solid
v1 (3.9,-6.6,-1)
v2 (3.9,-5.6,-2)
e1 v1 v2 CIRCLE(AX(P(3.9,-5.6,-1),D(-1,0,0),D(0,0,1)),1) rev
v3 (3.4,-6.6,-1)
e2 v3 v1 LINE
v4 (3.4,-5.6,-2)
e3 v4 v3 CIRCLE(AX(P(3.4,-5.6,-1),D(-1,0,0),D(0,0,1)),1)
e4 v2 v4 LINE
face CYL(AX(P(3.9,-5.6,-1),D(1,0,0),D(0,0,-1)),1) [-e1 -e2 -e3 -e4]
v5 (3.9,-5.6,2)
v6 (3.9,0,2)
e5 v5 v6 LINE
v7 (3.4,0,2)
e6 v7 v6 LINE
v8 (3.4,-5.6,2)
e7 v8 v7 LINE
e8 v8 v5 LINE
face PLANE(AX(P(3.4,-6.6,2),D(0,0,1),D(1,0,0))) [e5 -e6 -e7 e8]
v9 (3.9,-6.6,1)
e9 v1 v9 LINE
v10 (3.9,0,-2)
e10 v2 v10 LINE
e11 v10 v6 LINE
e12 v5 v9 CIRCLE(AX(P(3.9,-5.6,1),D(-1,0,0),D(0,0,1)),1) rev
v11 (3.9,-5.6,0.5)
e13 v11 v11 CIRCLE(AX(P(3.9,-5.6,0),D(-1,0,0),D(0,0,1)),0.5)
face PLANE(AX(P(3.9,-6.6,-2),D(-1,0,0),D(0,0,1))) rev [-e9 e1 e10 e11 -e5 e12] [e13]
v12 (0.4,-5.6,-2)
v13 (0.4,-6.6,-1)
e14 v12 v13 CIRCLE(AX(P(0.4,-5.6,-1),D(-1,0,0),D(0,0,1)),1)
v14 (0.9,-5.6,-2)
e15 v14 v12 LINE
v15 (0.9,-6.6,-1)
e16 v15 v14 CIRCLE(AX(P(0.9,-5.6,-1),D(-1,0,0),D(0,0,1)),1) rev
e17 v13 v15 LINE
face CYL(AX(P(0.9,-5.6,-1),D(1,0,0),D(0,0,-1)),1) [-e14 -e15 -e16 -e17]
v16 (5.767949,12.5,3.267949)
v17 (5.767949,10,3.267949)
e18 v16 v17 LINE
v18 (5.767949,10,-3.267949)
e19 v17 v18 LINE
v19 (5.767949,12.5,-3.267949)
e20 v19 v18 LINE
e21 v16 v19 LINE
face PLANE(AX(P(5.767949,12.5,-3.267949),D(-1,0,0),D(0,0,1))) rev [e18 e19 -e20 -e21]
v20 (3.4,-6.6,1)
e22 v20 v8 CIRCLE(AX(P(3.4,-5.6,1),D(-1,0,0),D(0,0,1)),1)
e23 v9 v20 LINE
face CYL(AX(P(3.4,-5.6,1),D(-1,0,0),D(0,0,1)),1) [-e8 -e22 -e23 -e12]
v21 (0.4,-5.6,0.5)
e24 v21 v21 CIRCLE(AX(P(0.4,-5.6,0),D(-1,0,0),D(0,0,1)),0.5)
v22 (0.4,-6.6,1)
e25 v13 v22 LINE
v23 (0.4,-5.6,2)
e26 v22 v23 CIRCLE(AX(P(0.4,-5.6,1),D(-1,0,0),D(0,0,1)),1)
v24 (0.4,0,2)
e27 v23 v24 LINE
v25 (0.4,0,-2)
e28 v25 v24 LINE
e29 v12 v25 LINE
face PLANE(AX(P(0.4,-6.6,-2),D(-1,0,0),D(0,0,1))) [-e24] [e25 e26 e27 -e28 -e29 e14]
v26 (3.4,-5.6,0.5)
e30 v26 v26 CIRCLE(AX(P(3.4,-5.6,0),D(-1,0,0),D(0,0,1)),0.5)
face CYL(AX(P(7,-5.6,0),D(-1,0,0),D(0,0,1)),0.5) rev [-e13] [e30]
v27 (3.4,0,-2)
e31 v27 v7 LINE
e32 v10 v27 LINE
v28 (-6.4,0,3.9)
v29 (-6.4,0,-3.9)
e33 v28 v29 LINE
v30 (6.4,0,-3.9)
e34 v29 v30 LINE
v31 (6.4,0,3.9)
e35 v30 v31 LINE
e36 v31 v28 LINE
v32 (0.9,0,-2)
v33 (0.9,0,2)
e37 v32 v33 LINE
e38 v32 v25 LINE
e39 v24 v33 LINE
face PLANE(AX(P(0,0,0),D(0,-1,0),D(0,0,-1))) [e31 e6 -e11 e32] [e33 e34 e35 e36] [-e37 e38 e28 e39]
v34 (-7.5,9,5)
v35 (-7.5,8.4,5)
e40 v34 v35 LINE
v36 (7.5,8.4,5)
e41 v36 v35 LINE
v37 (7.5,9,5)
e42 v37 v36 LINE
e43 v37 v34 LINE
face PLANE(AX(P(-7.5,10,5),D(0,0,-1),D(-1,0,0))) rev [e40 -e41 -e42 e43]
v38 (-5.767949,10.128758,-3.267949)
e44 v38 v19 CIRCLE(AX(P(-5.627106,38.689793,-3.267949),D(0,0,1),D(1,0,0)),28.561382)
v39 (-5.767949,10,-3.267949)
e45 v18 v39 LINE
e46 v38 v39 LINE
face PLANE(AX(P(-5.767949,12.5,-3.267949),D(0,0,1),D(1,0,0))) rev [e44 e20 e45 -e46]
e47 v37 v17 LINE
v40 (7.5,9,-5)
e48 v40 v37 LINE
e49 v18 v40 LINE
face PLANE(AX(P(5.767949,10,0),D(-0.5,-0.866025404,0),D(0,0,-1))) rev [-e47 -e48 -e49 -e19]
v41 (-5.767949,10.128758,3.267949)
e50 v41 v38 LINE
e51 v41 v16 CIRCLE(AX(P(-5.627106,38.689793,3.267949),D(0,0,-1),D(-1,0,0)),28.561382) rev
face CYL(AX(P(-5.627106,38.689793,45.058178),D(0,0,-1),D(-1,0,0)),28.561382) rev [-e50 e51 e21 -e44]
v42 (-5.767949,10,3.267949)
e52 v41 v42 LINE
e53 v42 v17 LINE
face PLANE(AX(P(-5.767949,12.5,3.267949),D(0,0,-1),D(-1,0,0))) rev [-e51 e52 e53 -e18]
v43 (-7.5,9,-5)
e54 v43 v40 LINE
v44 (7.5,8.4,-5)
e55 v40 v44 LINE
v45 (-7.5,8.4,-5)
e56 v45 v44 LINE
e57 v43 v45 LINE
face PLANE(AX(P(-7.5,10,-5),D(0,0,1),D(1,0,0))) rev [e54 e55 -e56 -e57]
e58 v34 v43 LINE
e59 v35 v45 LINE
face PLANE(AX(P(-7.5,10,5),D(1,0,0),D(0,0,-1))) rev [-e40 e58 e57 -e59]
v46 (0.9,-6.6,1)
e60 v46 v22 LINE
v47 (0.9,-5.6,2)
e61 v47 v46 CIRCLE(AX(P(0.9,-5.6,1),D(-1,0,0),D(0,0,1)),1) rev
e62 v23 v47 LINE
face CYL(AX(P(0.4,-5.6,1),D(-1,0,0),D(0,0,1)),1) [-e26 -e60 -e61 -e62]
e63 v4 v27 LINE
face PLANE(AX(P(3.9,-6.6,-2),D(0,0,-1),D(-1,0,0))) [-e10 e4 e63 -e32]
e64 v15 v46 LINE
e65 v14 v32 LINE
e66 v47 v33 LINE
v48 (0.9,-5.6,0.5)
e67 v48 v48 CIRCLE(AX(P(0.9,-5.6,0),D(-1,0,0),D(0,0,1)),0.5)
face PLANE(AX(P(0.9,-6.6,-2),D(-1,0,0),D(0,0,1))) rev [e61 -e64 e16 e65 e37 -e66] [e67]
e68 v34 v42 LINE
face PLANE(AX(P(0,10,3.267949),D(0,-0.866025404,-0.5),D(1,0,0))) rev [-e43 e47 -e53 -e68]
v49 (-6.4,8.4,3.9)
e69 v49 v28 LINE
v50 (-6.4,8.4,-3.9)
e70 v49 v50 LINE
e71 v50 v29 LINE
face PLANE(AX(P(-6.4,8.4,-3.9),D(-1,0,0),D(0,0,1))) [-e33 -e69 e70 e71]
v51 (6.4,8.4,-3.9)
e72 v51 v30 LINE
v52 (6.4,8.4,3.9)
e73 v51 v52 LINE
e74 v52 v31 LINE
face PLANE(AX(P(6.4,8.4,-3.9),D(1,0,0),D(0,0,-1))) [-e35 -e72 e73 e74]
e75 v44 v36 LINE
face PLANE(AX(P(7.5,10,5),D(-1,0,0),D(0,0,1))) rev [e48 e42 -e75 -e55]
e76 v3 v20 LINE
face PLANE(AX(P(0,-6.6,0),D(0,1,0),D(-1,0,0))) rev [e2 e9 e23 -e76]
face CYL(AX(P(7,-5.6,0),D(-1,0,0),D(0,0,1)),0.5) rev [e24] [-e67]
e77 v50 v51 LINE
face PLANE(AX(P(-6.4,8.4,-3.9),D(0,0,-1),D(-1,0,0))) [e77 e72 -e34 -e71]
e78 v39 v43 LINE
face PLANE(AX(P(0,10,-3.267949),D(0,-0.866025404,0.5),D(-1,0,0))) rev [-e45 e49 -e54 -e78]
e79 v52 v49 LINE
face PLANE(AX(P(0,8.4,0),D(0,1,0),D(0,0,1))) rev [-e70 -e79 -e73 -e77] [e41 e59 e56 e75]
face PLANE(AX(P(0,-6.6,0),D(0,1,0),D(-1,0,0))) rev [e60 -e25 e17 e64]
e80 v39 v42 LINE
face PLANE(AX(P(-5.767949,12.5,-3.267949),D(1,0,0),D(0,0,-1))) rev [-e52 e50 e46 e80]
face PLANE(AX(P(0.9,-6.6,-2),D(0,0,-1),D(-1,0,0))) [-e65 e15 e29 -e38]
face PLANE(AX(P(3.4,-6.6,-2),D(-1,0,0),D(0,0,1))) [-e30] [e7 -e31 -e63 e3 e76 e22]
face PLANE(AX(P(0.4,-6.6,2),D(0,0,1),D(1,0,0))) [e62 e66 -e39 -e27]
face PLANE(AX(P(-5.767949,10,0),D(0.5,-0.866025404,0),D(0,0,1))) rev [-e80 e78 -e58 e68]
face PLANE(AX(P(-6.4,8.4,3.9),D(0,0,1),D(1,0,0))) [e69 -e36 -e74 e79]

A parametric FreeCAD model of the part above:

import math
import FreeCAD as App
import Part
import Sketcher
from FreeCAD import Vector


def edges_at(feature, points):
    """Names of the edges that pass closest to the given points."""
    edges = feature.Shape.Edges
    near = lambda p: min(range(len(edges)), key=lambda i: edges[i].distToShape(Part.Vertex(*p))[0])
    return sorted({f"Edge{near(p) + 1}" for p in points})

doc = App.newDocument("Part")
body = doc.addObject("PartDesign::Body", "Body")

# Sketch on XZ plane
sketch1 = body.newObject("Sketcher::SketchObject", "Sketch")
sketch1.AttachmentSupport = (doc.getObject("XZ_Plane"), [""])
sketch1.MapMode = "FlatFace"
sketch1.addGeometry([
    Part.LineSegment(Vector(-7.5, -5, 0), Vector(-7.5, 5, 0)),
    Part.LineSegment(Vector(-7.5, 5, 0), Vector(7.5, 5, 0)),
    Part.LineSegment(Vector(7.5, 5, 0), Vector(7.5, -5, 0)),
    Part.LineSegment(Vector(7.5, -5, 0), Vector(-7.5, -5, 0)),
], False)
sketch1.addConstraint([
    Sketcher.Constraint("Coincident", 0, 2, 1, 1),
    Sketcher.Constraint("Coincident", 1, 2, 2, 1),
    Sketcher.Constraint("Coincident", 2, 2, 3, 1),
    Sketcher.Constraint("Coincident", 3, 2, 0, 1),
    Sketcher.Constraint("Vertical", 0),
    Sketcher.Constraint("Horizontal", 1),
    Sketcher.Constraint("Vertical", 2),
    Sketcher.Constraint("Horizontal", 3),
    Sketcher.Constraint("Symmetric", 0, 2, 2, 2, -1, 1),
    Sketcher.Constraint("DistanceX", 1, 1, 1, 2, 15.0),
    Sketcher.Constraint("DistanceY", 0, 1, 0, 2, 10.0),
])
pad1 = body.newObject("PartDesign::Pad", "Pad")
pad1.Profile = sketch1
pad1.Length = 10
pad1.Reversed = True

# Sketch on XZ plane
sketch2 = body.newObject("Sketcher::SketchObject", "Sketch001")
sketch2.AttachmentSupport = (doc.getObject("XZ_Plane"), [""])
sketch2.MapMode = "FlatFace"
sketch2.addGeometry([
    Part.LineSegment(Vector(-7.5, 5, 0), Vector(-7.5, -5, 0)),  # 0
    Part.LineSegment(Vector(-7.5, -5, 0), Vector(7.5, -5, 0)),  # 1
    Part.LineSegment(Vector(7.5, -5, 0), Vector(7.5, 5, 0)),  # 2
    Part.LineSegment(Vector(7.5, 5, 0), Vector(-7.5, 5, 0)),  # 3
    Part.LineSegment(Vector(6.4, -3.9, 0), Vector(-6.4, -3.9, 0)),  # 4
    Part.LineSegment(Vector(-6.4, -3.9, 0), Vector(-6.4, 3.9, 0)),  # 5
    Part.LineSegment(Vector(-6.4, 3.9, 0), Vector(6.4, 3.9, 0)),  # 6
    Part.LineSegment(Vector(6.4, 3.9, 0), Vector(6.4, -3.9, 0)),  # 7
], False)
sketch2.addConstraint([
    Sketcher.Constraint("Coincident", 0, 2, 1, 1),
    Sketcher.Constraint("Coincident", 1, 2, 2, 1),
    Sketcher.Constraint("Coincident", 2, 2, 3, 1),
    Sketcher.Constraint("Coincident", 3, 2, 0, 1),
    Sketcher.Constraint("Coincident", 4, 2, 5, 1),
    Sketcher.Constraint("Coincident", 5, 2, 6, 1),
    Sketcher.Constraint("Coincident", 6, 2, 7, 1),
    Sketcher.Constraint("Coincident", 7, 2, 4, 1),
    Sketcher.Constraint("Vertical", 0),
    Sketcher.Constraint("Horizontal", 1),
    Sketcher.Constraint("Vertical", 2),
    Sketcher.Constraint("Horizontal", 3),
    Sketcher.Constraint("Horizontal", 4),
    Sketcher.Constraint("Vertical", 5),
    Sketcher.Constraint("Horizontal", 6),
    Sketcher.Constraint("Vertical", 7),
    Sketcher.Constraint("Symmetric", 0, 2, 2, 2, -1, 1),
    Sketcher.Constraint("Symmetric", 4, 2, 6, 2, -1, 1),
    Sketcher.Constraint("DistanceX", 1, 1, 1, 2, 15.0),
    Sketcher.Constraint("DistanceY", 0, 2, 0, 1, 10.0),
    Sketcher.Constraint("DistanceX", 4, 2, 4, 1, 12.8),
    Sketcher.Constraint("DistanceY", 5, 1, 5, 2, 7.8),
])
pocket1 = body.newObject("PartDesign::Pocket", "Pocket")
pocket1.Profile = sketch2
pocket1.Length = 8.4
doc.recompute()

chamfer = body.newObject("PartDesign::Chamfer", "Chamfer")
chamfer.Base = (pocket1, edges_at(pocket1, [(-7.5, 10, 0)]))
chamfer.ChamferType = "Two distances"
chamfer.Size = 1
chamfer.Size2 = 1.732051
doc.recompute()

chamfer2 = body.newObject("PartDesign::Chamfer", "Chamfer001")
chamfer2.Base = (chamfer, edges_at(chamfer, [(0.866, 10, 5)]))
chamfer2.ChamferType = "Two distances"
chamfer2.Size = 1
chamfer2.Size2 = 1.732051
doc.recompute()

chamfer3 = body.newObject("PartDesign::Chamfer", "Chamfer002")
chamfer3.Base = (chamfer2, edges_at(chamfer2, [(7.5, 10, -0.866)]))
chamfer3.ChamferType = "Two distances"
chamfer3.Size = 1
chamfer3.Size2 = 1.732051
doc.recompute()

chamfer4 = body.newObject("PartDesign::Chamfer", "Chamfer003")
chamfer4.Base = (chamfer3, edges_at(chamfer3, [(0, 10, -5)]))
chamfer4.ChamferType = "Two distances"
chamfer4.Size = 1
chamfer4.Size2 = 1.732051

# Sketch on XZ plane
sketch3 = body.newObject("Sketcher::SketchObject", "Sketch002")
sketch3.AttachmentSupport = (doc.getObject("XZ_Plane"), [""])
sketch3.MapMode = "FlatFace"
sketch3.addGeometry([
    Part.LineSegment(Vector(3.4, 2, 0), Vector(3.4, -2, 0)),  # 0
    Part.LineSegment(Vector(3.4, -2, 0), Vector(3.9, -2, 0)),  # 1
    Part.LineSegment(Vector(3.9, -2, 0), Vector(3.9, 2, 0)),  # 2
    Part.LineSegment(Vector(3.9, 2, 0), Vector(3.4, 2, 0)),  # 3
    Part.LineSegment(Vector(0.4, 2, 0), Vector(0.4, -2, 0)),  # 4
    Part.LineSegment(Vector(0.4, -2, 0), Vector(0.9, -2, 0)),  # 5
    Part.LineSegment(Vector(0.9, -2, 0), Vector(0.9, 2, 0)),  # 6
    Part.LineSegment(Vector(0.9, 2, 0), Vector(0.4, 2, 0)),  # 7
], False)
sketch3.addConstraint([
    Sketcher.Constraint("Coincident", 0, 2, 1, 1),
    Sketcher.Constraint("Coincident", 1, 2, 2, 1),
    Sketcher.Constraint("Coincident", 2, 2, 3, 1),
    Sketcher.Constraint("Coincident", 3, 2, 0, 1),
    Sketcher.Constraint("Coincident", 4, 2, 5, 1),
    Sketcher.Constraint("Coincident", 5, 2, 6, 1),
    Sketcher.Constraint("Coincident", 6, 2, 7, 1),
    Sketcher.Constraint("Coincident", 7, 2, 4, 1),
    Sketcher.Constraint("Vertical", 0),
    Sketcher.Constraint("Horizontal", 1),
    Sketcher.Constraint("Vertical", 2),
    Sketcher.Constraint("Horizontal", 3),
    Sketcher.Constraint("Vertical", 4),
    Sketcher.Constraint("Horizontal", 5),
    Sketcher.Constraint("Vertical", 6),
    Sketcher.Constraint("Horizontal", 7),
    Sketcher.Constraint("Horizontal", 1, 2, 4, 2),
    Sketcher.Constraint("Horizontal", 3, 2, 6, 2),
    Sketcher.Constraint("Equal", 3, 5),
    Sketcher.Constraint("DistanceY", 0, 2, 0, 1, 4.0),
    Sketcher.Constraint("DistanceX", 1, 1, 1, 2, 0.5),
    Sketcher.Constraint("DistanceY", 0, 2, -1, 1, 2.0),
    Sketcher.Constraint("DistanceX", 4, 2, 0, 2, 3.0),
    Sketcher.Constraint("DistanceX", -1, 1, 0, 2, 3.4),
])
pad2 = body.newObject("PartDesign::Pad", "Pad001")
pad2.Profile = sketch3
pad2.Length = 6.6
doc.recompute()

fillet = body.newObject("PartDesign::Fillet", "Fillet")
fillet.Base = (pad2, edges_at(pad2, [
    (3.65, -6.6, 2),
    (3.65, -6.6, -2),
    (0.65, -6.6, 2),
    (0.65, -6.6, -2),
]))
fillet.Radius = 1

# Sketch on YZ plane
sketch4 = body.newObject("Sketcher::SketchObject", "Sketch003")
sketch4.AttachmentSupport = (doc.getObject("YZ_Plane"), [""])
sketch4.MapMode = "FlatFace"
sketch4.AttachmentOffset = App.Placement(Vector(0, 0, 0.4), App.Rotation())
sketch4.addGeometry(Part.Circle(Vector(-5.6, 0, 0), Vector(0, 0, 1), 0.5), False)
sketch4.addConstraint([
    Sketcher.Constraint("PointOnObject", 0, 3, -1),
    Sketcher.Constraint("Diameter", 0, 1.0),
    Sketcher.Constraint("DistanceX", 0, 3, -1, 1, 5.6),
])
pocket2 = body.newObject("PartDesign::Pocket", "Pocket001")
pocket2.Profile = sketch4
pocket2.Length = 6.6
pocket2.Reversed = True

# Sketch on XZ plane
sketch5 = body.newObject("Sketcher::SketchObject", "Sketch004")
sketch5.AttachmentSupport = (doc.getObject("XZ_Plane"), [""])
sketch5.MapMode = "FlatFace"
sketch5.AttachmentOffset = App.Placement(Vector(0, 0, -10), App.Rotation())
sketch5.addGeometry([
    Part.LineSegment(Vector(-5.767949, -3.267949, 0), Vector(-5.767949, 3.267949, 0)),
    Part.LineSegment(Vector(-5.767949, 3.267949, 0), Vector(5.767949, 3.267949, 0)),
    Part.LineSegment(Vector(5.767949, 3.267949, 0), Vector(5.767949, -3.267949, 0)),
    Part.LineSegment(Vector(5.767949, -3.267949, 0), Vector(-5.767949, -3.267949, 0)),
], False)
sketch5.addConstraint([
    Sketcher.Constraint("Coincident", 0, 2, 1, 1),
    Sketcher.Constraint("Coincident", 1, 2, 2, 1),
    Sketcher.Constraint("Coincident", 2, 2, 3, 1),
    Sketcher.Constraint("Coincident", 3, 2, 0, 1),
    Sketcher.Constraint("Vertical", 0),
    Sketcher.Constraint("Horizontal", 1),
    Sketcher.Constraint("Vertical", 2),
    Sketcher.Constraint("Horizontal", 3),
    Sketcher.Constraint("Symmetric", 0, 2, 2, 2, -1, 1),
    Sketcher.Constraint("DistanceX", 1, 1, 1, 2, 11.535898),
    Sketcher.Constraint("DistanceY", 0, 1, 0, 2, 6.535898),
])
pad3 = body.newObject("PartDesign::Pad", "Pad002")
pad3.Profile = sketch5
pad3.Length = 2.5
pad3.Reversed = True

# Sketch on XY plane
sketch6 = body.newObject("Sketcher::SketchObject", "Sketch005")
sketch6.AttachmentSupport = (doc.getObject("XY_Plane"), [""])
sketch6.MapMode = "FlatFace"
sketch6.AttachmentOffset = App.Placement(Vector(0, 0, 3.267949), App.Rotation())
sketch6.addGeometry([
    Part.LineSegment(Vector(5.767949, 12.5, 0), Vector(57.58776, 35.046554, 0)),  # 0
    Part.LineSegment(Vector(57.58776, 35.046554, 0), Vector(34.830972, 145.756482, 0)),  # 1
    Part.LineSegment(Vector(34.830972, 145.756482, 0), Vector(-85.036348, 121.117362, 0)),  # 2
    Part.LineSegment(Vector(-85.036348, 121.117362, 0), Vector(-62.27956, 10.407435, 0)),  # 3
    Part.LineSegment(Vector(-62.27956, 10.407435, 0), Vector(-5.767949, 10.128758, 0)),  # 4
    Part.ArcOfCircle(Part.Circle(Vector(-5.627106, 38.689793, 0), Vector(0, 0, 1), 28.561382), math.radians(-90.282541), math.radians(-66.48637)),  # 5
], False)
sketch6.addConstraint([
    Sketcher.Constraint("Coincident", 0, 2, 1, 1),
    Sketcher.Constraint("Coincident", 1, 2, 2, 1),
    Sketcher.Constraint("Coincident", 2, 2, 3, 1),
    Sketcher.Constraint("Coincident", 3, 2, 4, 1),
    Sketcher.Constraint("Tangent", 4, 2, 5, 1),
    Sketcher.Constraint("Tangent", 5, 2, 0, 1),
    Sketcher.Constraint("Perpendicular", 1, 2),
    Sketcher.Constraint("Perpendicular", 2, 3),
    Sketcher.Constraint("Equal", 1, 3),
    Sketcher.Constraint("Equal", 0, 4),
    Sketcher.Constraint("DistanceY", -1, 1, 5, 2, 12.5),
    Sketcher.Constraint("Radius", 5, 28.561382),
    Sketcher.Constraint("Distance", 0, 56.512298),
    Sketcher.Constraint("DistanceX", 2, 2, 4, 2, 79.268399),
    Sketcher.Constraint("DistanceX", 4, 2, 5, 2, 11.535898),
    Sketcher.Constraint("DistanceX", -1, 1, 0, 2, 57.58776),
    Sketcher.Constraint("DistanceX", 2, 2, -1, 1, 85.036348),
])
pocket3 = body.newObject("PartDesign::Pocket", "Pocket002")
pocket3.Profile = sketch6
pocket3.Type = "ThroughAll"
pocket3.Midplane = True

doc.recompute()
